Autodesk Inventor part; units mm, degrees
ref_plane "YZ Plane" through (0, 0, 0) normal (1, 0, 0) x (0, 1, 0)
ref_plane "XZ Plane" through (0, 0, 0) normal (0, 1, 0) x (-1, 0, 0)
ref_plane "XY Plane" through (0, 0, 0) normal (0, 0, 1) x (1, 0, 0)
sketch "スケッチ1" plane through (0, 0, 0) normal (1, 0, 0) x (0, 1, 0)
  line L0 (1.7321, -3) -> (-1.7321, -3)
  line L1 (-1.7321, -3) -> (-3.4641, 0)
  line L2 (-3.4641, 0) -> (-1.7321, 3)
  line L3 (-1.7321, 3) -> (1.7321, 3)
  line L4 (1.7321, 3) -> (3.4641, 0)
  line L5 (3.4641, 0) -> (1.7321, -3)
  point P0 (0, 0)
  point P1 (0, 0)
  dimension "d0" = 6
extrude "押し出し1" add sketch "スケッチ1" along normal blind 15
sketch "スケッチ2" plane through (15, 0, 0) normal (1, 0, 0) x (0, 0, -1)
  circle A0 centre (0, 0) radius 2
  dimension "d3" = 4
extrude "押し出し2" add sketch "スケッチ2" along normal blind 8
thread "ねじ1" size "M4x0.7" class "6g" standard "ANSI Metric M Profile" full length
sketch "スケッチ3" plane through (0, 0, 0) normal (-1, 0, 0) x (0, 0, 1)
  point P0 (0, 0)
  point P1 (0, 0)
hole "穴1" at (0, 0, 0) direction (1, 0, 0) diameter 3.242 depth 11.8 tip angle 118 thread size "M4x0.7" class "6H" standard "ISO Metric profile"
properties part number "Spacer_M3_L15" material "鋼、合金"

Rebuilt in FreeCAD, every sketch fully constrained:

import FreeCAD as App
import Part
import Sketcher

V = App.Vector
Q = App.Units.Quantity

doc = App.newDocument("Part")
body = doc.addObject("PartDesign::Body", "Body")

# Sketch on YZ plane
sketch1 = doc.addObject("Sketcher::SketchObject", "Sketch")
body.addObject(sketch1)
sketch1.AttachmentSupport = (doc.YZ_Plane, [""])
sketch1.MapMode = "FlatFace"
sketch1.addGeometry([
    Part.LineSegment(V(-1.7, -3, 0), V(1.7, -3, 0)),  # 0
    Part.LineSegment(V(1.7, -3, 0), V(3.5, 0, 0)),  # 1
    Part.LineSegment(V(3.5, 0, 0), V(1.7, 3, 0)),  # 2
    Part.LineSegment(V(1.7, 3, 0), V(-1.7, 3, 0)),  # 3
    Part.LineSegment(V(-1.7, 3, 0), V(-3.5, 0, 0)),  # 4
    Part.LineSegment(V(-3.5, 0, 0), V(-1.7, -3, 0)),  # 5
], False)
sketch1.addConstraint([
    Sketcher.Constraint("Coincident", 0, 2, 1, 1),
    Sketcher.Constraint("Coincident", 1, 2, 2, 1),
    Sketcher.Constraint("Coincident", 2, 2, 3, 1),
    Sketcher.Constraint("Coincident", 3, 2, 4, 1),
    Sketcher.Constraint("Coincident", 4, 2, 5, 1),
    Sketcher.Constraint("Coincident", 5, 2, 0, 1),
    Sketcher.Constraint("Horizontal", 0),
    Sketcher.Constraint("Horizontal", 3),
    Sketcher.Constraint("Symmetric", 0, 2, 3, 2, -1, 1),
    Sketcher.Constraint("Symmetric", 1, 2, 4, 2, -1, 1),
    Sketcher.Constraint("PointOnObject", 1, 2, -1),
    Sketcher.Constraint("Parallel", 2, 5),
    Sketcher.Constraint("Vertical", 0, 2, 2, 2),
    Sketcher.Constraint("DistanceY", 0, 2, 2, 2, Q("6 mm")),
    Sketcher.Constraint("Angle", 1, Q("60.0007 deg")),
    Sketcher.Constraint("DistanceX", 0, 1, 0, 2, Q("3.4642 mm")),
])
pad1 = doc.addObject("PartDesign::Pad", "Pad")
body.addObject(pad1)
pad1.Profile = sketch1
pad1.Length = 15

# Sketch on YZ plane
sketch2 = doc.addObject("Sketcher::SketchObject", "Sketch001")
body.addObject(sketch2)
sketch2.AttachmentSupport = (doc.YZ_Plane, [""])
sketch2.MapMode = "FlatFace"
sketch2.AttachmentOffset = App.Placement(V(0, 0, 15), App.Rotation())
sketch2.addGeometry(Part.Circle(V(0, 0, 0), V(0, 0, 1), 2), False)
sketch2.addConstraint([
    Sketcher.Constraint("Coincident", 0, 3, -1, 1),
    Sketcher.Constraint("Diameter", 0, Q("4 mm")),
])
pad2 = doc.addObject("PartDesign::Pad", "Pad001")
body.addObject(pad2)
pad2.Profile = sketch2
pad2.Length = 8

# Sketch on YZ plane
sketch3 = doc.addObject("Sketcher::SketchObject", "Sketch002")
body.addObject(sketch3)
sketch3.AttachmentSupport = (doc.YZ_Plane, [""])
sketch3.MapMode = "FlatFace"
sketch3.addGeometry(Part.Circle(V(0, 0, 0), V(0, 0, 1), 1.6), False)
sketch3.addConstraint([
    Sketcher.Constraint("Coincident", 0, 3, -1, 1),
    Sketcher.Constraint("Diameter", 0, Q("3.242 mm")),
])
doc.recompute()
hole = doc.addObject("PartDesign::Hole", "Hole")
body.addObject(hole)
hole.Profile = sketch3
hole.ThreadType = "None"
hole.Diameter = 3.242
hole.DepthType = "Dimension"
hole.Depth = 11.8
hole.DrillPoint = "Angled"
hole.DrillPointAngle = 118
hole.Reversed = True

doc.recompute()
